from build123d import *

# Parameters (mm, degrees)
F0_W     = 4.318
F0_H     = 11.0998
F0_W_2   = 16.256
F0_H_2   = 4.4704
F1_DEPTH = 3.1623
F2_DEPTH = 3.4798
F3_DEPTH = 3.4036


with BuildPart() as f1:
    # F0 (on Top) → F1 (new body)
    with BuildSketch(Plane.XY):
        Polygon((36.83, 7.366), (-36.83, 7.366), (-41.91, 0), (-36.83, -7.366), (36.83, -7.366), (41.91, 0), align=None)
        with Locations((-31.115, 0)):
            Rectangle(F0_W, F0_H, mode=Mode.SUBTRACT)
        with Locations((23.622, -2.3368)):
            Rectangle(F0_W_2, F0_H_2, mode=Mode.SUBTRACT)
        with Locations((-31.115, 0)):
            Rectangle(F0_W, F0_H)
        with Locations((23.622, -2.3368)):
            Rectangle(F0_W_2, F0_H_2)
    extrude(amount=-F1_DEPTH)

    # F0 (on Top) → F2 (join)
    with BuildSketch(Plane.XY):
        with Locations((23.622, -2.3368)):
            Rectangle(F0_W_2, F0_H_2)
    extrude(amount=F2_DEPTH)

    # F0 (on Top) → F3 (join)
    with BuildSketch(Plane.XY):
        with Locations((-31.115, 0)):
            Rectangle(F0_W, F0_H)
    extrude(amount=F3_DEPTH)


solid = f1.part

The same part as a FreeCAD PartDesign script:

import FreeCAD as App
import Part
import Sketcher
from FreeCAD import Vector
Q = App.Units.Quantity


def add_polygon(sketch, points):
    """Adds a closed chain of lines whose ends are joined by coincident constraints."""
    first, n = sketch.GeometryCount, len(points)
    for a, b in zip(points, points[1:] + points[:1]):
        sketch.addGeometry(Part.LineSegment(App.Vector(*a, 0), App.Vector(*b, 0)), False)
    for i in range(n):
        sketch.addConstraint(Sketcher.Constraint("Coincident", first + i, 2, first + (i + 1) % n, 1))

doc = App.newDocument("Part")
params = doc.addObject("Spreadsheet::Sheet", "Params")
for row, (alias, value) in enumerate([
    ("sketch1_width", "2.9 in"),
    ("pad1_length", "0.1245 in"),
    ("sketch2_width", "0.64 in"),
    ("sketch2_height", "0.176 in"),
    ("pad2_length", "0.137 in"),
    ("sketch3_width", "0.17 in"),
    ("sketch3_height", "0.437 in"),
    ("pad3_length", "0.134 in"),
], start=1):
    params.set(f"A{row}", alias)
    params.set(f"B{row}", "=" + value)
    params.setAlias(f"B{row}", alias)

body = doc.addObject("PartDesign::Body", "Body")

# Sketch on XY plane
sketch1 = doc.addObject("Sketcher::SketchObject", "Sketch")
body.addObject(sketch1)
sketch1.AttachmentSupport = (doc.XY_Plane, [""])
sketch1.MapMode = "FlatFace"
add_polygon(sketch1, [(37, 7), (-37, 7), (-42, 0), (-37, -7), (37, -7), (42, 0)])  # lines 0-5
sketch1.addConstraint([
    Sketcher.Constraint("Horizontal", 0),
    Sketcher.Constraint("Horizontal", 3),
    Sketcher.Constraint("Symmetric", 0, 2, 3, 2, -1, 1),
    Sketcher.Constraint("Symmetric", 1, 2, 4, 2, -1, 1),
    Sketcher.Constraint("PointOnObject", 1, 2, -1),
    Sketcher.Constraint("Parallel", 2, 5),
    Sketcher.Constraint("Vertical", 0, 2, 2, 2),
    Sketcher.Constraint("DistanceX", 0, 2, 0, 1, Q("2.9 in")),
    Sketcher.Constraint("DistanceX", 1, 2, 0, 2, Q("0.2 in")),
    Sketcher.Constraint("DistanceY", -1, 1, 0, 2, Q("0.29 in")),
])
sketch1.setExpression("Constraints[13]", "Params.sketch1_width")
pad1 = doc.addObject("PartDesign::Pad", "Pad")
body.addObject(pad1)
pad1.Profile = sketch1
pad1.setExpression("Length", "Params.pad1_length")
pad1.Reversed = True

# Sketch on XY plane
sketch2 = doc.addObject("Sketcher::SketchObject", "Sketch001")
body.addObject(sketch2)
sketch2.AttachmentSupport = (doc.XY_Plane, [""])
sketch2.MapMode = "FlatFace"
add_polygon(sketch2, [(15.5, -0.1), (15.5, -4.6), (31.8, -4.6), (31.8, -0.1)])  # lines 0-3
sketch2.addConstraint([
    Sketcher.Constraint("Vertical", 0),
    Sketcher.Constraint("Horizontal", 1),
    Sketcher.Constraint("Vertical", 2),
    Sketcher.Constraint("Horizontal", 3),
    Sketcher.Constraint("DistanceX", 1, 1, 1, 2, Q("0.64 in")),
    Sketcher.Constraint("DistanceY", 0, 2, 0, 1, Q("0.176 in")),
    Sketcher.Constraint("DistanceX", -1, 1, 0, 2, Q("0.61 in")),
    Sketcher.Constraint("DistanceY", 0, 2, -1, 1, Q("0.18 in")),
])
sketch2.setExpression("Constraints[8]", "Params.sketch2_width")
sketch2.setExpression("Constraints[9]", "Params.sketch2_height")
pad2 = doc.addObject("PartDesign::Pad", "Pad001")
body.addObject(pad2)
pad2.Profile = sketch2
pad2.setExpression("Length", "Params.pad2_length")

# Sketch on XY plane
sketch3 = doc.addObject("Sketcher::SketchObject", "Sketch002")
body.addObject(sketch3)
sketch3.AttachmentSupport = (doc.XY_Plane, [""])
sketch3.MapMode = "FlatFace"
add_polygon(sketch3, [(-33.3, 5.5), (-33.3, -5.5), (-29, -5.5), (-29, 5.5)])  # lines 0-3
sketch3.addConstraint([
    Sketcher.Constraint("Vertical", 0),
    Sketcher.Constraint("Horizontal", 1),
    Sketcher.Constraint("Vertical", 2),
    Sketcher.Constraint("Horizontal", 3),
    Sketcher.Constraint("DistanceX", 1, 1, 1, 2, Q("0.17 in")),
    Sketcher.Constraint("DistanceY", 0, 2, 0, 1, Q("0.437 in")),
    Sketcher.Constraint("DistanceX", 0, 2, -1, 1, Q("1.31 in")),
    Sketcher.Constraint("DistanceY", 0, 2, -1, 1, Q("0.2185 in")),
])
sketch3.setExpression("Constraints[8]", "Params.sketch3_width")
sketch3.setExpression("Constraints[9]", "Params.sketch3_height")
pad3 = doc.addObject("PartDesign::Pad", "Pad002")
body.addObject(pad3)
pad3.Profile = sketch3
pad3.setExpression("Length", "Params.pad3_length")

doc.recompute()
